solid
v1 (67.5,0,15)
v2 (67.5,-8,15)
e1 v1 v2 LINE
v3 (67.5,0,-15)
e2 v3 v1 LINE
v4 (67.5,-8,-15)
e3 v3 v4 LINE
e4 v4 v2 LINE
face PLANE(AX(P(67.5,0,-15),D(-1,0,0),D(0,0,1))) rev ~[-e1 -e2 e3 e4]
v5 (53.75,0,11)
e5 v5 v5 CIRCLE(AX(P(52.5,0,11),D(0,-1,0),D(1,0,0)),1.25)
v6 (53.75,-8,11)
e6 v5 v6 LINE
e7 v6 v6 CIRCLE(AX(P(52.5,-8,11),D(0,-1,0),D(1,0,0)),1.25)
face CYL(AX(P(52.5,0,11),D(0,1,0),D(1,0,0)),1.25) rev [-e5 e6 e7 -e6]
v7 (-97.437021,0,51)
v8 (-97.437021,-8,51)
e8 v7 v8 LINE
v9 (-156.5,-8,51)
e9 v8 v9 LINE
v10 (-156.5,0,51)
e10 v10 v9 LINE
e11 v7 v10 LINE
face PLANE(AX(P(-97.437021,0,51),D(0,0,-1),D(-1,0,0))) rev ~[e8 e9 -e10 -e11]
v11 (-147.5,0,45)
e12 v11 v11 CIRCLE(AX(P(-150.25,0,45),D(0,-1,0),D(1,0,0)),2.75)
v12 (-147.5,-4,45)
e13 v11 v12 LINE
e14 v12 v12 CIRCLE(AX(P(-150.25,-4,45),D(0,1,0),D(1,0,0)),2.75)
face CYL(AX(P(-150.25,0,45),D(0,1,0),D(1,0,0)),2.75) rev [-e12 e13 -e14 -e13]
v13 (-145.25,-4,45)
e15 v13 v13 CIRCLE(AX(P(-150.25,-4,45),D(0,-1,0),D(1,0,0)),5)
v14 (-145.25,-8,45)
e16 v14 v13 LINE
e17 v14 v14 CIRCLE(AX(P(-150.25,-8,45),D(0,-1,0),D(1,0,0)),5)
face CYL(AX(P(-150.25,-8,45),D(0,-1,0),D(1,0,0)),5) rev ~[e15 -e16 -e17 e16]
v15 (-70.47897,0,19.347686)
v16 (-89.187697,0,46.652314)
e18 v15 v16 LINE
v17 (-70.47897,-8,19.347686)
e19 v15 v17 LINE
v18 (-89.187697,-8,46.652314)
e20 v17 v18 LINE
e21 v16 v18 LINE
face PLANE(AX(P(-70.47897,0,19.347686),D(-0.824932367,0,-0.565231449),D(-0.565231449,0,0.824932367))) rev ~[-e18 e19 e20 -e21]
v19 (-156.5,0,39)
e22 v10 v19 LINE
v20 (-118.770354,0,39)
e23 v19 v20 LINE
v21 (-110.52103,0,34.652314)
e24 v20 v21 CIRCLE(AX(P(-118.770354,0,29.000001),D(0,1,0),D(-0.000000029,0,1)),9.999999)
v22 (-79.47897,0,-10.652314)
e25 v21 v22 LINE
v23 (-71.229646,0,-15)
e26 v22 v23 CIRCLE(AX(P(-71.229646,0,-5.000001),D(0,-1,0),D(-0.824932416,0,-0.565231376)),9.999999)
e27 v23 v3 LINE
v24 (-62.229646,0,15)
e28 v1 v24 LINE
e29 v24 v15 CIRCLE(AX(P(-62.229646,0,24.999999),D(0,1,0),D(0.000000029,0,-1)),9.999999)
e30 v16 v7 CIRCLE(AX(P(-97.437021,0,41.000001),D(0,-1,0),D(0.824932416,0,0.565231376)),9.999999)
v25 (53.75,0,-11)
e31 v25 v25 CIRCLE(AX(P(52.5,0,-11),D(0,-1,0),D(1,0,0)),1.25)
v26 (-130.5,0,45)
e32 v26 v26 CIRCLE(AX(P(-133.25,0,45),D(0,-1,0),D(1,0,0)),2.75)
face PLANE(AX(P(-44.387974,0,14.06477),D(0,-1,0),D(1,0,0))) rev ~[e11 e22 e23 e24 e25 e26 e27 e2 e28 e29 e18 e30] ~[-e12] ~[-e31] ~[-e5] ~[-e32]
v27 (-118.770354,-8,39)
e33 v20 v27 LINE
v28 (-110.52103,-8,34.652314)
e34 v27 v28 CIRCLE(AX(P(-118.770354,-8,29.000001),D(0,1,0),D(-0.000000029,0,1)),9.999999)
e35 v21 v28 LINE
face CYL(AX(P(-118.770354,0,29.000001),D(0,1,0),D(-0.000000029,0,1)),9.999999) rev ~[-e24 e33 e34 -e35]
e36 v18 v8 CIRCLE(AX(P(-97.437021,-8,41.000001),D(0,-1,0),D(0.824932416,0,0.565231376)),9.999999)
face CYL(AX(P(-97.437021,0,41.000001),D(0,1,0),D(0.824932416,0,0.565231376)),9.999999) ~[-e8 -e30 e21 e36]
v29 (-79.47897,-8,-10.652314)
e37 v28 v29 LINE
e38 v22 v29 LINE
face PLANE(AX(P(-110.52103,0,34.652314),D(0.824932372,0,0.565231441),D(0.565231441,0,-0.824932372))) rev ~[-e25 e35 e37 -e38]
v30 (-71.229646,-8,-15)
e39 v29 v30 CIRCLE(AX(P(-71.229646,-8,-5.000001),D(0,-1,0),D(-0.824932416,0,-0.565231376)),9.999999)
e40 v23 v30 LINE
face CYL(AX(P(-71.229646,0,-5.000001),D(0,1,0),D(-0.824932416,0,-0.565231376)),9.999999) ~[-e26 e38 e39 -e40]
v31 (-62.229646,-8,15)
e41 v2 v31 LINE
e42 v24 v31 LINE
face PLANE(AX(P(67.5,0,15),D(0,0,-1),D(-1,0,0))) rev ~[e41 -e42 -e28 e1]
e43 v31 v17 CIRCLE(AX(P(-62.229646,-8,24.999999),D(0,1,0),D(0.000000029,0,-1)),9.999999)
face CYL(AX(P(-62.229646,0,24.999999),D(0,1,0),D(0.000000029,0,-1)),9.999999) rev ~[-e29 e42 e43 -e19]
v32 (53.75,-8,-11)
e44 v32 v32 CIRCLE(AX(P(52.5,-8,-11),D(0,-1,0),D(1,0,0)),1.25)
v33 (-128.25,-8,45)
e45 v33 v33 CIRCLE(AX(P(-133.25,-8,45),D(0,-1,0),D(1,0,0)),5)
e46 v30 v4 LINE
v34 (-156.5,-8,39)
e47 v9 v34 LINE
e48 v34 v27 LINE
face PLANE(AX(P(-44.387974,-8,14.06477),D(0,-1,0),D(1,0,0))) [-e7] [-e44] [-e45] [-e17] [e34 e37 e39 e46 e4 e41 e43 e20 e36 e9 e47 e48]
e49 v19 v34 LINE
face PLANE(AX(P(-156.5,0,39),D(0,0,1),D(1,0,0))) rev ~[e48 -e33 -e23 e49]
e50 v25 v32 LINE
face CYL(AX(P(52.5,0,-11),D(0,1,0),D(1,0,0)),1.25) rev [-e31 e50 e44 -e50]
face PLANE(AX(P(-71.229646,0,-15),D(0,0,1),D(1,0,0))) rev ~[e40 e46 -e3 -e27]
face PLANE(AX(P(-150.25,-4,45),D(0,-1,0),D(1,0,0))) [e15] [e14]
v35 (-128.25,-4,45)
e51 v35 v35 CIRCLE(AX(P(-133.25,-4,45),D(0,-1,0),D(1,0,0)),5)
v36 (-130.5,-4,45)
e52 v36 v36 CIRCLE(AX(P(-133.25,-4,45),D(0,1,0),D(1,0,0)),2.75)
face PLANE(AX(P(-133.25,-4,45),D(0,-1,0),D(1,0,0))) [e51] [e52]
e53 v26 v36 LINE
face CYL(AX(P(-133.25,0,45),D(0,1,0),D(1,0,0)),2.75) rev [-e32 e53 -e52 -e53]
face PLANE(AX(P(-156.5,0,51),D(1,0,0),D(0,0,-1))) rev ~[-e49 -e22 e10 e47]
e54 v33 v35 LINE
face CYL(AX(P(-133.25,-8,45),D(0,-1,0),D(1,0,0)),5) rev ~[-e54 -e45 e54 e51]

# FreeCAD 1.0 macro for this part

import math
import FreeCAD as App
import Part
import Sketcher

V = App.Vector
Q = App.Units.Quantity

doc = App.newDocument("Part")
params = doc.addObject("Spreadsheet::Sheet", "Params")
for row, (alias, value) in enumerate([
    ("sketch1_radius", "9.999999 mm"),
    ("sketch1_diameter", "2.5 mm"),
    ("sketch1_diameter2", "5.5 mm"),
    ("sketch1_height", "30 mm"),
    ("sketch1_height2", "12 mm"),
    ("pad1_length", "8 mm"),
    ("sketch2_diameter", "10 mm"),
    ("pocket1_length", "4 mm"),
], start=1):
    params.set(f"A{row}", alias)
    params.set(f"B{row}", "=" + value)
    params.setAlias(f"B{row}", alias)

body = doc.addObject("PartDesign::Body", "Body")

# Sketch on XZ plane
sketch1 = body.newObject("Sketcher::SketchObject", "Sketch")
sketch1.AttachmentSupport = (doc.getObject("XZ_Plane"), [""])
sketch1.MapMode = "FlatFace"
sketch1.addGeometry([
    Part.LineSegment(V(67.5, -15, 0), V(67.5, 15, 0)),  # 0
    Part.LineSegment(V(67.5, 15, 0), V(-62.2, 15, 0)),  # 1
    Part.ArcOfCircle(Part.Circle(V(-62.2, 25, 0), V(0, 0, 1), 10), math.radians(-146), math.radians(-90)),  # 2
    Part.LineSegment(V(-70.5, 19.3, 0), V(-89.2, 46.7, 0)),  # 3
    Part.ArcOfCircle(Part.Circle(V(-97.4, 41, 0), V(0, 0, 1), 10), math.radians(34), math.radians(90)),  # 4
    Part.LineSegment(V(-97.4, 51, 0), V(-156.5, 51, 0)),  # 5
    Part.LineSegment(V(-156.5, 51, 0), V(-156.5, 39, 0)),  # 6
    Part.LineSegment(V(-156.5, 39, 0), V(-118.8, 39, 0)),  # 7
    Part.ArcOfCircle(Part.Circle(V(-118.8, 29, 0), V(0, 0, 1), 10), math.radians(34), math.radians(90)),  # 8
    Part.LineSegment(V(-110.5, 34.7, 0), V(-79.5, -10.7, 0)),  # 9
    Part.ArcOfCircle(Part.Circle(V(-71.2, -5, 0), V(0, 0, 1), 10), math.radians(-146), math.radians(-90)),  # 10
    Part.LineSegment(V(-71.2, -15, 0), V(67.5, -15, 0)),  # 11
    Part.Circle(V(52.5, -11, 0), V(0, 0, 1), 1.2),  # 12
    Part.Circle(V(52.5, 11, 0), V(0, 0, 1), 1.2),  # 13
    Part.Circle(V(-150.2, 45, 0), V(0, 0, 1), 2.8),  # 14
    Part.Circle(V(-133.2, 45, 0), V(0, 0, 1), 2.8),  # 15
], False)
sketch1.addConstraint([
    Sketcher.Constraint("Coincident", 0, 2, 1, 1),
    Sketcher.Constraint("Tangent", 1, 2, 2, 2),
    Sketcher.Constraint("Tangent", 2, 1, 3, 1),
    Sketcher.Constraint("Tangent", 3, 2, 4, 1),
    Sketcher.Constraint("Tangent", 4, 2, 5, 1),
    Sketcher.Constraint("Coincident", 5, 2, 6, 1),
    Sketcher.Constraint("Coincident", 6, 2, 7, 1),
    Sketcher.Constraint("Tangent", 7, 2, 8, 2),
    Sketcher.Constraint("Tangent", 8, 1, 9, 1),
    Sketcher.Constraint("Tangent", 9, 2, 10, 1),
    Sketcher.Constraint("Tangent", 10, 2, 11, 1),
    Sketcher.Constraint("Coincident", 11, 2, 0, 1),
    Sketcher.Constraint("Vertical", 0),
    Sketcher.Constraint("Horizontal", 1),
    Sketcher.Constraint("Horizontal", 5),
    Sketcher.Constraint("Vertical", 6),
    Sketcher.Constraint("Horizontal", 7),
    Sketcher.Constraint("Horizontal", 11),
    Sketcher.Constraint("Equal", 2, 4),
    Sketcher.Constraint("Equal", 4, 8),
    Sketcher.Constraint("Equal", 8, 10),
    Sketcher.Constraint("Equal", 12, 13),
    Sketcher.Constraint("Equal", 14, 15),
    Sketcher.Constraint("Symmetric", 12, 3, 13, 3, -1),
    Sketcher.Constraint("Parallel", 3, 9),
    Sketcher.Constraint("Horizontal", 14, 3, 15, 3),
    Sketcher.Constraint("Radius", 2, Q("9.999999 mm")),
    Sketcher.Constraint("Diameter", 12, Q("2.5 mm")),
    Sketcher.Constraint("Diameter", 14, Q("5.5 mm")),
    Sketcher.Constraint("DistanceY", 0, 1, 0, 2, Q("30 mm")),
    Sketcher.Constraint("DistanceY", 6, 2, 6, 1, Q("12 mm")),
    Sketcher.Constraint("DistanceY", -1, 1, 2, 3, Q("24.999999 mm")),
    Sketcher.Constraint("DistanceY", -1, 1, 4, 3, Q("41.000001 mm")),
    Sketcher.Constraint("DistanceY", 12, 3, -1, 1, Q("11 mm")),
    Sketcher.Constraint("DistanceY", -1, 1, 14, 3, Q("45 mm")),
    Sketcher.Constraint("DistanceX", 10, 3, 2, 3, Q("9 mm")),
    Sketcher.Constraint("DistanceX", 14, 3, 15, 3, Q("17 mm")),
    Sketcher.Constraint("DistanceX", 13, 3, 0, 2, Q("15 mm")),
    Sketcher.Constraint("DistanceX", -1, 1, 12, 3, Q("52.5 mm")),
    Sketcher.Constraint("DistanceX", 5, 2, -1, 1, Q("156.5 mm")),
    Sketcher.Constraint("DistanceX", 14, 3, -1, 1, Q("150.25 mm")),
    Sketcher.Constraint("DistanceX", 5, 2, 5, 1, Q("59.062979 mm")),
    Sketcher.Constraint("DistanceX", 1, 2, 1, 1, Q("129.729646 mm")),
])
sketch1.setExpression("Constraints[26]", "Params.sketch1_radius")
sketch1.setExpression("Constraints[27]", "Params.sketch1_diameter")
sketch1.setExpression("Constraints[28]", "Params.sketch1_diameter2")
sketch1.setExpression("Constraints[29]", "Params.sketch1_height")
sketch1.setExpression("Constraints[30]", "Params.sketch1_height2")
pad1 = body.newObject("PartDesign::Pad", "Pad")
pad1.Profile = sketch1
pad1.setExpression("Length", "Params.pad1_length")

# Sketch on XZ plane
sketch2 = body.newObject("Sketcher::SketchObject", "Sketch001")
sketch2.AttachmentSupport = (doc.getObject("XZ_Plane"), [""])
sketch2.MapMode = "FlatFace"
sketch2.AttachmentOffset = App.Placement(V(0, 0, 8), App.Rotation())
sketch2.addGeometry([
    Part.Circle(V(-150, 45, 0), V(0, 0, 1), 5),
    Part.Circle(V(-133, 45, 0), V(0, 0, 1), 5),
], False)
sketch2.addConstraint([
    Sketcher.Constraint("Equal", 0, 1),
    Sketcher.Constraint("Horizontal", 0, 3, 1, 3),
    Sketcher.Constraint("Diameter", 0, Q("10 mm")),
    Sketcher.Constraint("DistanceY", -1, 1, 0, 3, Q("45 mm")),
    Sketcher.Constraint("DistanceX", 0, 3, 1, 3, Q("17 mm")),
    Sketcher.Constraint("DistanceX", 0, 3, -1, 1, Q("150.25 mm")),
])
sketch2.setExpression("Constraints[2]", "Params.sketch2_diameter")
pocket1 = body.newObject("PartDesign::Pocket", "Pocket")
pocket1.Profile = sketch2
pocket1.setExpression("Length", "Params.pocket1_length")

doc.recompute()
